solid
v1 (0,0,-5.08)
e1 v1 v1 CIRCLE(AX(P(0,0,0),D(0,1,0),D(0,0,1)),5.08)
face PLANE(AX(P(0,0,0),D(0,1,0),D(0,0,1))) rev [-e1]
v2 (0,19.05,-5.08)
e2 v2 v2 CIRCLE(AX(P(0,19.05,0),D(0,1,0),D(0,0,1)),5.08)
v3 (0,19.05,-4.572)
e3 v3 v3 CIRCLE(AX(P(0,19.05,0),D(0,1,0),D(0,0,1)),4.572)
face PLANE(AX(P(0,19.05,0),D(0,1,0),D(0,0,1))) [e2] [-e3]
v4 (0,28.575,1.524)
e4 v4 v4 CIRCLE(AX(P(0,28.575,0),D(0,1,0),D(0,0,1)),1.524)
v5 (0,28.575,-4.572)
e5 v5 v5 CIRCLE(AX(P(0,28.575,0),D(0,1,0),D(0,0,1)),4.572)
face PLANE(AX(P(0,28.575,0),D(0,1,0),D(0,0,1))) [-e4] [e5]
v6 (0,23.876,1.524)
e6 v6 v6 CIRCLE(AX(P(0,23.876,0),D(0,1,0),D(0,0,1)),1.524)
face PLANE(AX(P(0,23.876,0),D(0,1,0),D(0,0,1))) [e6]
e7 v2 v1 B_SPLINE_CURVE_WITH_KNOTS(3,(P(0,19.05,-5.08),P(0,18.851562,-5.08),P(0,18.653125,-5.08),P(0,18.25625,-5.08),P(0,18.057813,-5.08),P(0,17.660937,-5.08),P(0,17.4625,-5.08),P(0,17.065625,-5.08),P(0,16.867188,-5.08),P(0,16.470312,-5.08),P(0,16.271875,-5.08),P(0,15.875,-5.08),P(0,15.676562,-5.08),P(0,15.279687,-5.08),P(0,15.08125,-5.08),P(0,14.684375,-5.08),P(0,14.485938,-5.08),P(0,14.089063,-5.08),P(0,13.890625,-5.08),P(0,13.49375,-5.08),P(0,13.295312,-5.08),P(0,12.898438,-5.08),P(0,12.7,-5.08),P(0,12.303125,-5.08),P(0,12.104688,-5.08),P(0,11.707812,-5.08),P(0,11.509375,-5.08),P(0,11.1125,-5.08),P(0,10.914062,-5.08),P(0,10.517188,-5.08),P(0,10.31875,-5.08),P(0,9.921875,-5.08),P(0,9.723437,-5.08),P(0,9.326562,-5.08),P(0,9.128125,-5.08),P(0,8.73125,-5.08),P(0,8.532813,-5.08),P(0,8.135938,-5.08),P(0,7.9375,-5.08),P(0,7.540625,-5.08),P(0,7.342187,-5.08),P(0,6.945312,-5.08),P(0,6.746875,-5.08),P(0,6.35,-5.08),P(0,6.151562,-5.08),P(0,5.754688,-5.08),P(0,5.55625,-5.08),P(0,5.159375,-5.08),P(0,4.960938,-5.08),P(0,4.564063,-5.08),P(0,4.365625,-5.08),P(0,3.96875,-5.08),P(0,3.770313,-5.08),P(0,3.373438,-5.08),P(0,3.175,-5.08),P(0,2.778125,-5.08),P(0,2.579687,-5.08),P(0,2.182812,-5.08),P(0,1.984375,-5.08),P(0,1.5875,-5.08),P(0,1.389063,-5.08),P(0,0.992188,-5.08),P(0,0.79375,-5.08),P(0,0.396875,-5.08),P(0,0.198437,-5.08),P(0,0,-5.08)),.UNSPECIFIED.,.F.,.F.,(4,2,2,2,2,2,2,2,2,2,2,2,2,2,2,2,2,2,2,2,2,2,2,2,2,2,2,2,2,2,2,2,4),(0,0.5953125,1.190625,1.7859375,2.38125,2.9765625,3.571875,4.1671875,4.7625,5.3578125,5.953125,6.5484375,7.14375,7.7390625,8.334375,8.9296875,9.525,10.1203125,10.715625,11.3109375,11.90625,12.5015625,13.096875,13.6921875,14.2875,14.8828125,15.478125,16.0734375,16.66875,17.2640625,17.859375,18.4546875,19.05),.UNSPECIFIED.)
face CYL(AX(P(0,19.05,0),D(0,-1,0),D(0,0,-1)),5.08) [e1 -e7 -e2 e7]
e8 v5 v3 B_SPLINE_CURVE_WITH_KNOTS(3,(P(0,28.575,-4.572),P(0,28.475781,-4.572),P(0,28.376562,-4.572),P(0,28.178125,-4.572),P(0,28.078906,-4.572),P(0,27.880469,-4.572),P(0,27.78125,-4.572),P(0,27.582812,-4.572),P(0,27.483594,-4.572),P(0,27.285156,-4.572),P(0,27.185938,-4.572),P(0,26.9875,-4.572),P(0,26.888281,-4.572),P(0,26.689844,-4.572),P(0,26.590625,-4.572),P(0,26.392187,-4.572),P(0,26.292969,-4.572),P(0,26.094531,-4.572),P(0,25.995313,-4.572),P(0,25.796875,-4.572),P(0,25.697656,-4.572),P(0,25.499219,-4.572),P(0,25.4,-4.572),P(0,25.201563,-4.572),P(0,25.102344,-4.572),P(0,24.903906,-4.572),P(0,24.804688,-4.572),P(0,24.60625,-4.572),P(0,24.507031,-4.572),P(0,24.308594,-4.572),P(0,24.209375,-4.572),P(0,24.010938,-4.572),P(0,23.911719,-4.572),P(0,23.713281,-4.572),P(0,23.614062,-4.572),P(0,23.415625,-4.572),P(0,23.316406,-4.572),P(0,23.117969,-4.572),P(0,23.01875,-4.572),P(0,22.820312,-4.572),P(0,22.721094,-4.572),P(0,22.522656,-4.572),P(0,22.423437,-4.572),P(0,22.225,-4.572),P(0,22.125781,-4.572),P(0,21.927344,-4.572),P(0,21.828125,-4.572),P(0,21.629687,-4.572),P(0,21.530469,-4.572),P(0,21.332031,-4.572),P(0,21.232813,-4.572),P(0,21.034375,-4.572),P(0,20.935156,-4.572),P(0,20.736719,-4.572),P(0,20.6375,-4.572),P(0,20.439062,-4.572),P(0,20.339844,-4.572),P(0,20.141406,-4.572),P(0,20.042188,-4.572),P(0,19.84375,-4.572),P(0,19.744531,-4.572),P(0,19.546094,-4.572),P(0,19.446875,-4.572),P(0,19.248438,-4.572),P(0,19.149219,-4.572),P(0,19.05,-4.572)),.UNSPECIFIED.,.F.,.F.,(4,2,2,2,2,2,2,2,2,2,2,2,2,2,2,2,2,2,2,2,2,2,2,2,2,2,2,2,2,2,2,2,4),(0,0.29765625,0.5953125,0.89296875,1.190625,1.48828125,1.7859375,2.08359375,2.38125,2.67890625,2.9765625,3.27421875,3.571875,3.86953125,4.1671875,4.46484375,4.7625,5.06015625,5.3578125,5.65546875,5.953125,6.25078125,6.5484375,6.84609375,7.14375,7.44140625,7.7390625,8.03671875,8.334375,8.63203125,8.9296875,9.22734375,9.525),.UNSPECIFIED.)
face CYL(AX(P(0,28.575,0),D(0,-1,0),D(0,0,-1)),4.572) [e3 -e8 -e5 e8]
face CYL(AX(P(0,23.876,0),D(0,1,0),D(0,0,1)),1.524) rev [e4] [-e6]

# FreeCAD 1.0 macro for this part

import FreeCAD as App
import Part
import Sketcher
Q = App.Units.Quantity

doc = App.newDocument("Part")
body = doc.addObject("PartDesign::Body", "Body")

# Sketch on XZ plane
sketch1 = body.newObject("Sketcher::SketchObject", "Sketch")
sketch1.AttachmentSupport = (doc.getObject("XZ_Plane"), [""])
sketch1.MapMode = "FlatFace"
sketch1.addGeometry(Part.Circle(App.Vector(0, 0, 0), App.Vector(0, 0, 1), 5.08), False)
sketch1.addConstraint([
    Sketcher.Constraint("Coincident", 0, 3, -1, 1),
    Sketcher.Constraint("Diameter", 0, Q("0.4 in")),
])
pad1 = body.newObject("PartDesign::Pad", "Pad")
pad1.Profile = sketch1
pad1.Length = Q("0.75 in")
pad1.Reversed = True

# Sketch on XZ plane
sketch2 = body.newObject("Sketcher::SketchObject", "Sketch001")
sketch2.AttachmentSupport = (doc.getObject("XZ_Plane"), [""])
sketch2.MapMode = "FlatFace"
sketch2.AttachmentOffset = App.Placement(App.Vector(0, 0, -0.75 * 25.4), App.Rotation())
sketch2.addGeometry(Part.Circle(App.Vector(0, 0, 0), App.Vector(0, 0, 1), 4.572), False)
sketch2.addConstraint([
    Sketcher.Constraint("Coincident", 0, 3, -1, 1),
    Sketcher.Constraint("Diameter", 0, Q("0.36 in")),
])
pad2 = body.newObject("PartDesign::Pad", "Pad001")
pad2.Profile = sketch2
pad2.Length = Q("0.375 in")
pad2.Reversed = True

# Sketch on XZ plane
sketch3 = body.newObject("Sketcher::SketchObject", "Sketch002")
sketch3.AttachmentSupport = (doc.getObject("XZ_Plane"), [""])
sketch3.MapMode = "FlatFace"
sketch3.AttachmentOffset = App.Placement(App.Vector(0, 0, -1.125 * 25.4), App.Rotation())
sketch3.addGeometry(Part.Circle(App.Vector(0, 0, 0), App.Vector(0, 0, 1), 1.524), False)
sketch3.addConstraint([
    Sketcher.Constraint("Coincident", 0, 3, -1, 1),
    Sketcher.Constraint("Diameter", 0, Q("0.12 in")),
])
pocket1 = body.newObject("PartDesign::Pocket", "Pocket")
pocket1.Profile = sketch3
pocket1.Length = Q("0.185 in")
pocket1.Reversed = True

doc.recompute()
